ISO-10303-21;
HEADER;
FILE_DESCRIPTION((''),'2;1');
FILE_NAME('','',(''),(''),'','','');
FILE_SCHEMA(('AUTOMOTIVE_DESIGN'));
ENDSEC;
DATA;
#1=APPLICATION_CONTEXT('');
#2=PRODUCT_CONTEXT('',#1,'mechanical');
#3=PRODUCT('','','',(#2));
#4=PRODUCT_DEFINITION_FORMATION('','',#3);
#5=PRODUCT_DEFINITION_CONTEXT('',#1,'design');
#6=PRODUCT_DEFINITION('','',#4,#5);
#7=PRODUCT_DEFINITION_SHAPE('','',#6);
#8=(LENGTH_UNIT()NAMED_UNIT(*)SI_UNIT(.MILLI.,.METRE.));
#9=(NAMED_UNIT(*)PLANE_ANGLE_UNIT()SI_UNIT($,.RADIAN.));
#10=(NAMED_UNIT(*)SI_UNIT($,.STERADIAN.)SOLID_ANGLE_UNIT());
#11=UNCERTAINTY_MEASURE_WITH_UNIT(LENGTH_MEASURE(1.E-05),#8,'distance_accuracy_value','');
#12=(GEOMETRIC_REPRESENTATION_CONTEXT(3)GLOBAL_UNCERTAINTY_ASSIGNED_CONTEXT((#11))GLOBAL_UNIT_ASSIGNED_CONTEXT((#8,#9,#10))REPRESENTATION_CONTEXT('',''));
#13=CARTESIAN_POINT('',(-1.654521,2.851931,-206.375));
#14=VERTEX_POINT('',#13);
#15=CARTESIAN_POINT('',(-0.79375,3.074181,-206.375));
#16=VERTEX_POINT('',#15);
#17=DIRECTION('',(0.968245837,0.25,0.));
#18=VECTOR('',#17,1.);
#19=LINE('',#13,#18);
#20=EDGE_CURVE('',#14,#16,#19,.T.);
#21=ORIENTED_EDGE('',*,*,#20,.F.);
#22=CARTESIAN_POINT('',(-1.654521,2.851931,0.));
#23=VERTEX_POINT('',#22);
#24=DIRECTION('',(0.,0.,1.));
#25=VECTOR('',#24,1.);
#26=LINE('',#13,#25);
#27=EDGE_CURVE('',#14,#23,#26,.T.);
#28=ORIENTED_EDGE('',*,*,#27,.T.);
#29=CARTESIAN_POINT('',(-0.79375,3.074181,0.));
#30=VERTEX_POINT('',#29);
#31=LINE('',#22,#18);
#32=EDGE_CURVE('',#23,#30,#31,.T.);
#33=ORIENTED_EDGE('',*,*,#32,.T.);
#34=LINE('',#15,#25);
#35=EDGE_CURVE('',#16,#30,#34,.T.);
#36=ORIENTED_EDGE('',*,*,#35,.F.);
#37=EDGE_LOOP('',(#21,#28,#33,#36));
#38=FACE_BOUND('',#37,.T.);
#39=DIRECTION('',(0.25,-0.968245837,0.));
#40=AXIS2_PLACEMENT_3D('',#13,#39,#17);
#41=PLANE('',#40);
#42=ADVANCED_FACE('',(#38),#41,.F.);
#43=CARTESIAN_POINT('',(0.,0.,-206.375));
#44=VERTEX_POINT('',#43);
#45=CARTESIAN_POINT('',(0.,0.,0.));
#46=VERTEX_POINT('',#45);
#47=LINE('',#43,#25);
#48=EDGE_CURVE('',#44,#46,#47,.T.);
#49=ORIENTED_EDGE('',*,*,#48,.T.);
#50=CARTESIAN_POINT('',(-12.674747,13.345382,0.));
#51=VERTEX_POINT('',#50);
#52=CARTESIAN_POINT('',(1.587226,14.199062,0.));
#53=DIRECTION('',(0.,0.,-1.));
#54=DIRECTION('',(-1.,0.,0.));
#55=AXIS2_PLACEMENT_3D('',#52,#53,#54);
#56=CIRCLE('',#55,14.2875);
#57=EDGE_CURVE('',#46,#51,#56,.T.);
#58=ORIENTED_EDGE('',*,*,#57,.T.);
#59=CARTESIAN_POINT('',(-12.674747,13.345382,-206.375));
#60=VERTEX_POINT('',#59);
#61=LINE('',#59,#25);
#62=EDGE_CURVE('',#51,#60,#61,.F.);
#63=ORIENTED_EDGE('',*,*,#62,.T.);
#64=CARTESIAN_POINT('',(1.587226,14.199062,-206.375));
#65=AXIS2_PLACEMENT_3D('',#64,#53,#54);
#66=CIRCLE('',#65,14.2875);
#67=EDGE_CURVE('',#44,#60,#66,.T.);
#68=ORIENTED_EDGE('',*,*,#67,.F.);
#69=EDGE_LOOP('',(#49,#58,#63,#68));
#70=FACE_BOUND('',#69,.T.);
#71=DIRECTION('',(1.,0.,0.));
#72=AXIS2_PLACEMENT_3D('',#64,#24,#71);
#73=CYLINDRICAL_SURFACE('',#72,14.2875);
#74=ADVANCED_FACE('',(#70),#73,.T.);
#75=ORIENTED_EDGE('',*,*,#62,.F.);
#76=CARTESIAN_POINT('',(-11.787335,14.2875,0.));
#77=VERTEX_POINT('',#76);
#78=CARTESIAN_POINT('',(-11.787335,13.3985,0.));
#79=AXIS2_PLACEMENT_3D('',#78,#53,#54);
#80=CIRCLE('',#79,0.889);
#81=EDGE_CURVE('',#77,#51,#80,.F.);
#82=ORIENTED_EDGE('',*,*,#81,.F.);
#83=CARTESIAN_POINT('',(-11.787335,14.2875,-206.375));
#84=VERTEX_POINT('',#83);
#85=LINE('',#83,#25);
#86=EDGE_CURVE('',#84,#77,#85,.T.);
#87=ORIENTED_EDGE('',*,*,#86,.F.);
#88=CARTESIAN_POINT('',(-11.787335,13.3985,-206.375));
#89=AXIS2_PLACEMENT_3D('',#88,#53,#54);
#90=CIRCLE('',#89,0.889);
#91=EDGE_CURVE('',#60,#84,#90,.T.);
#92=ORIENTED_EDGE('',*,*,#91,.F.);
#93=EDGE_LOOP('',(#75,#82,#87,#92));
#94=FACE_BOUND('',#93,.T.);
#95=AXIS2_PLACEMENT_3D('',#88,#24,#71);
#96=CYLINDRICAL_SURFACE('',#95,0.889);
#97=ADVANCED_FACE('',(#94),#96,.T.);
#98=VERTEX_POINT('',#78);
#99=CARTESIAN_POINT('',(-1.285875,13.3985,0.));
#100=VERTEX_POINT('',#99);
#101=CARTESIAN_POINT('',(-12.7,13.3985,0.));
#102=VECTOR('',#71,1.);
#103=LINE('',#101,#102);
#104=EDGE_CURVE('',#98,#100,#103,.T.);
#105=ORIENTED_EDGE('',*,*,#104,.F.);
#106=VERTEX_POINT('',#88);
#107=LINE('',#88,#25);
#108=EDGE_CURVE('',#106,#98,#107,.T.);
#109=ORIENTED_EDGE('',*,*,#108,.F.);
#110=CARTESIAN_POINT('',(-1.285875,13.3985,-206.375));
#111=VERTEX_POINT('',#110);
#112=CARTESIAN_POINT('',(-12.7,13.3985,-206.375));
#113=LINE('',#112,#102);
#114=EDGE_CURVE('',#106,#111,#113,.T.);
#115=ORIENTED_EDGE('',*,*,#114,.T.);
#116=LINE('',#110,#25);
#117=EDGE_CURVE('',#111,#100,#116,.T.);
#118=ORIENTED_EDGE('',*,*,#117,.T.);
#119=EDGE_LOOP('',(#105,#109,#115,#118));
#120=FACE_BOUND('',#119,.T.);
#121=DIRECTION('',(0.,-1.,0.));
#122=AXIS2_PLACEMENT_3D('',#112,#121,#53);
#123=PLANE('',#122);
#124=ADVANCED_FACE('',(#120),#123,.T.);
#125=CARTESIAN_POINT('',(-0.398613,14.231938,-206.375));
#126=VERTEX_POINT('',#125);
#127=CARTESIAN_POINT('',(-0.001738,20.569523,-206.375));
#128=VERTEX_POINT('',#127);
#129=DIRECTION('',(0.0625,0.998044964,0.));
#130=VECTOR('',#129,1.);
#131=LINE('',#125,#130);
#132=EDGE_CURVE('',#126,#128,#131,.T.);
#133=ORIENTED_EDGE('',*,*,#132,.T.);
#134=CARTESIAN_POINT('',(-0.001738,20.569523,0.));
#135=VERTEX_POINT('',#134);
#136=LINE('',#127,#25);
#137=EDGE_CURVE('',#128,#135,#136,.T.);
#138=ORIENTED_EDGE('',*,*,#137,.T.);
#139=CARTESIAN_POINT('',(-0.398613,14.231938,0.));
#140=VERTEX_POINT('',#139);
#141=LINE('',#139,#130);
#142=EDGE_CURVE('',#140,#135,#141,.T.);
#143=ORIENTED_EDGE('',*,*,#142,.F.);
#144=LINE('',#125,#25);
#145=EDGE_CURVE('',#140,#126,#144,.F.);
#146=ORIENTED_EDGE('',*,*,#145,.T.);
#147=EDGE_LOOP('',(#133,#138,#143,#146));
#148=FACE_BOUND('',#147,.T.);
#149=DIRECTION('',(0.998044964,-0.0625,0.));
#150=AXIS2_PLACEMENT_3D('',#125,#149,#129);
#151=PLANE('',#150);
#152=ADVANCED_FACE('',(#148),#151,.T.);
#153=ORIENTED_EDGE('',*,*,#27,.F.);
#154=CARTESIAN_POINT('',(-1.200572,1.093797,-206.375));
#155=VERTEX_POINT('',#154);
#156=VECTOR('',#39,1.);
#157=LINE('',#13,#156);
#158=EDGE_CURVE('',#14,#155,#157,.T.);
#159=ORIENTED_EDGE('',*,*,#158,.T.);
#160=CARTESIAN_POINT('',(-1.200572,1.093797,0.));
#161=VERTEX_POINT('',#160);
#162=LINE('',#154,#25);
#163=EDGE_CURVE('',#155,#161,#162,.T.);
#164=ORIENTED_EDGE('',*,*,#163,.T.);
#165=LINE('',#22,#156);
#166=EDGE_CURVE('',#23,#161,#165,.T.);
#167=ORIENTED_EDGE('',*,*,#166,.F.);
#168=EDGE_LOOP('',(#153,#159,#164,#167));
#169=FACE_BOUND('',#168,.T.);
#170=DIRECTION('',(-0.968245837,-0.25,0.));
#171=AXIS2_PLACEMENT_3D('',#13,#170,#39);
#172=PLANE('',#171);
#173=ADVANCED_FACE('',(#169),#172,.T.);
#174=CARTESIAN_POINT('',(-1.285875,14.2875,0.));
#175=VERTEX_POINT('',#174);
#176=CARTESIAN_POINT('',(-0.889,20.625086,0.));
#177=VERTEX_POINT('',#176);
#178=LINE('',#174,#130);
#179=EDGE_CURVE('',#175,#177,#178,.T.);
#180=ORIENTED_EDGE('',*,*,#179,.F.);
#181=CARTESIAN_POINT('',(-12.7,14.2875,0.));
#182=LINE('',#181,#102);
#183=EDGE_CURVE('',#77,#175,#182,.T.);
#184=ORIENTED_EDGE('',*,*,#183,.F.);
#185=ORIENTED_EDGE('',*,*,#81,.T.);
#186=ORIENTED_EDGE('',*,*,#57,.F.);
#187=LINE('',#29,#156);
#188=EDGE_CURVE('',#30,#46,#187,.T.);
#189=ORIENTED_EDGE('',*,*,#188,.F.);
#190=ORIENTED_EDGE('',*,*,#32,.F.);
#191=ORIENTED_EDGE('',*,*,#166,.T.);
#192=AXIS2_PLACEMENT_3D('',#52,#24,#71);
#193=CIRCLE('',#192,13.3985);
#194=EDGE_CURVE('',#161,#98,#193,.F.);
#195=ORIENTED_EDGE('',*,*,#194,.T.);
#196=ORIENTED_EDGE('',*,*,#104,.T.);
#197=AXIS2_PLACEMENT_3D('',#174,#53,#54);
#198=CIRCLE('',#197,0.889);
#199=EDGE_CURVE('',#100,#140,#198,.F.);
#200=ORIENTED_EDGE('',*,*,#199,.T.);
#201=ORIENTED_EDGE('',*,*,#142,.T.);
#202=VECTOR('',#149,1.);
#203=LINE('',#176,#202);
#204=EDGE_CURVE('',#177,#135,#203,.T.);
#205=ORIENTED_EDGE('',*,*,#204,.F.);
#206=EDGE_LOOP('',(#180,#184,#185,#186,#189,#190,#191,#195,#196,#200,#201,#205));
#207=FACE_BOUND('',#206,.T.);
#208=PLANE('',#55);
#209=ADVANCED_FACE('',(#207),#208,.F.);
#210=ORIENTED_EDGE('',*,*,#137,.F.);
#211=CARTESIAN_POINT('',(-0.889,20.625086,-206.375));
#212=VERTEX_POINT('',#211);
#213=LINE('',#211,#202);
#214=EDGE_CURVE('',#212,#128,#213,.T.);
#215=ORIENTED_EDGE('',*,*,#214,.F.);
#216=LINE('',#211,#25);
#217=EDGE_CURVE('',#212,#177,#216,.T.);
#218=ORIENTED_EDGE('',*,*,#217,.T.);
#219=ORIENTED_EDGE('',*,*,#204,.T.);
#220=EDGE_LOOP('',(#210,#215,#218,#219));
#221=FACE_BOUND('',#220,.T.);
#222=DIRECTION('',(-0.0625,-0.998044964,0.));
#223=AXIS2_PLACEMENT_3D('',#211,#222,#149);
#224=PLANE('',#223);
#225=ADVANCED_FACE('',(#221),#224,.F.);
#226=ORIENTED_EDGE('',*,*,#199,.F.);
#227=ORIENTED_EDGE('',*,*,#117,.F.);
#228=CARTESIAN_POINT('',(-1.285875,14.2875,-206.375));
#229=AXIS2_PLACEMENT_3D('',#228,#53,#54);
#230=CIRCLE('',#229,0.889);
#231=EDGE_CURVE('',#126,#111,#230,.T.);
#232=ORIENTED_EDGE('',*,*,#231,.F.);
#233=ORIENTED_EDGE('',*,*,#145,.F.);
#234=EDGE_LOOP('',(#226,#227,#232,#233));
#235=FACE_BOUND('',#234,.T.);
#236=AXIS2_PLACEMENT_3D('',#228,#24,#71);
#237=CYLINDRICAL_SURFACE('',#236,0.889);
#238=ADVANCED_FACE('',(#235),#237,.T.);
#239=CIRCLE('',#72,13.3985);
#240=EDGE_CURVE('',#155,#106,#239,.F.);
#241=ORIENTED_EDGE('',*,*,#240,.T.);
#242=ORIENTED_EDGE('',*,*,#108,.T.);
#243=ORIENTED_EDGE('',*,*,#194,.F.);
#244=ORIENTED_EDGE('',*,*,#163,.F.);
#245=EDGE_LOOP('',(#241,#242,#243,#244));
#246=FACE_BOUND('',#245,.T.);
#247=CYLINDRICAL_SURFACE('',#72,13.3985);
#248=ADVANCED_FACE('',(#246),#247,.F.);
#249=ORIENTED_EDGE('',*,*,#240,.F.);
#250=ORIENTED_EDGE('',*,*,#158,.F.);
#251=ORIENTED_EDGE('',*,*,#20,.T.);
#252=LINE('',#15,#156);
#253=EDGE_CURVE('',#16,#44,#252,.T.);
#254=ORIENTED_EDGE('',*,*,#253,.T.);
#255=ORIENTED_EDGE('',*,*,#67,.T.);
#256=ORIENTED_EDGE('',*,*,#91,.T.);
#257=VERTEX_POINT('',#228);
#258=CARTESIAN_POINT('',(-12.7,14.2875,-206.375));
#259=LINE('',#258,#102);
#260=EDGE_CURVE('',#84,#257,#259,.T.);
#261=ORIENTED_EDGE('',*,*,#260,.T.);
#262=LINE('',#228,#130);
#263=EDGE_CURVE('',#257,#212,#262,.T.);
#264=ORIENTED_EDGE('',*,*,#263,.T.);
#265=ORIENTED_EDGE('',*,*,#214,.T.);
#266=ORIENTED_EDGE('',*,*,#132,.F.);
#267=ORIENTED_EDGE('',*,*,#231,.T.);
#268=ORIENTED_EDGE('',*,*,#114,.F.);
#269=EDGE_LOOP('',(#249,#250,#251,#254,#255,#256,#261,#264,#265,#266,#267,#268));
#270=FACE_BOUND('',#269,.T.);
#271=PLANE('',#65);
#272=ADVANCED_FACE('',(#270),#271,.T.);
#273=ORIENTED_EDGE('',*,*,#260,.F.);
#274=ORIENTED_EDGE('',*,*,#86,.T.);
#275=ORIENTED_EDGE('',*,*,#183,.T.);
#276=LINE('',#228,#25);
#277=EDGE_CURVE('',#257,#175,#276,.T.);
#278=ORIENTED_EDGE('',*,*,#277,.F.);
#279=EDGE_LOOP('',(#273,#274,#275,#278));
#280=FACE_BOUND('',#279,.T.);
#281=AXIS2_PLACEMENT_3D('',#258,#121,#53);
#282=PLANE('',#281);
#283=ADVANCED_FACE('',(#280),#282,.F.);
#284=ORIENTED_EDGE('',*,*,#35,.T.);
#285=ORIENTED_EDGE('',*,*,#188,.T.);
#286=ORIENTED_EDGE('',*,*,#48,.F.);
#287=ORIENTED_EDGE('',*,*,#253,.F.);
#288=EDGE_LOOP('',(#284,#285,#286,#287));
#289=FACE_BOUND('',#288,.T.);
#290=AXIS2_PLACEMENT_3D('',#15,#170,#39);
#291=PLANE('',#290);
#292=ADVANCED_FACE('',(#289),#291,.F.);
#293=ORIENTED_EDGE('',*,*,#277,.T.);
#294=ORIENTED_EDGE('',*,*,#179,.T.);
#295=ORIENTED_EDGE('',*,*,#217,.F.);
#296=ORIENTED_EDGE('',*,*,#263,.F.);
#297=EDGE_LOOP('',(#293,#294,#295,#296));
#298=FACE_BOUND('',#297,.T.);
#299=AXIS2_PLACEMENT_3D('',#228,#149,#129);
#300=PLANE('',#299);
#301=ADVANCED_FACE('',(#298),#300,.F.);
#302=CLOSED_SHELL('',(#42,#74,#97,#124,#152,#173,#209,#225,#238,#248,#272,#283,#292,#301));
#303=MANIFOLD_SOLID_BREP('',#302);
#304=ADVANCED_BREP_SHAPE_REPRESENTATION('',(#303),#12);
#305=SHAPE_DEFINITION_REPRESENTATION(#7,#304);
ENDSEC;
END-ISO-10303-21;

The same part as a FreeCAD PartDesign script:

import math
import FreeCAD as App
import Part
import Sketcher
Q = App.Units.Quantity


def edges_at(feature, points):
    """Names of the edges that pass closest to the given points."""
    edges = feature.Shape.Edges
    near = lambda p: min(range(len(edges)), key=lambda i: edges[i].distToShape(Part.Vertex(*p))[0])
    return sorted({f"Edge{near(p) + 1}" for p in points})

doc = App.newDocument("Part")
params = doc.addObject("Spreadsheet::Sheet", "Params")
for row, (alias, value) in enumerate([
    ("sketch1_radius", "0.5625 in"),
    ("sketch1_length", "0.25 in"),
    ("sketch1_length2", "0.125 in"),
    ("sketch1_length3", "0.035 in"),
    ("pad1_length", "8.125 in"),
    ("fillet_radius", "0.035 in"),
], start=1):
    params.set(f"A{row}", alias)
    params.set(f"B{row}", "=" + value)
    params.setAlias(f"B{row}", alias)

body = doc.addObject("PartDesign::Body", "Body")

# Sketch on XY plane
sketch1 = doc.addObject("Sketcher::SketchObject", "Sketch")
body.addObject(sketch1)
sketch1.AttachmentSupport = (doc.XY_Plane, [""])
sketch1.MapMode = "FlatFace"
sketch1.addGeometry([
    Part.LineSegment(App.Vector(0, 0, 0), App.Vector(-0.79375, 3.074181, 0)),  # 0
    Part.LineSegment(App.Vector(-0.79375, 3.074181, 0), App.Vector(-1.654521, 2.851931, 0)),  # 1
    Part.LineSegment(App.Vector(-1.654521, 2.851931, 0), App.Vector(-1.200572, 1.093797, 0)),  # 2
    Part.ArcOfCircle(Part.Circle(App.Vector(1.587226, 14.199062, 0), App.Vector(0, 0, 1), 13.3985), math.radians(-176.574529), math.radians(-102.009154)),  # 3
    Part.LineSegment(App.Vector(-11.787335, 13.3985, 0), App.Vector(-0.450805, 13.3985, 0)),  # 4
    Part.LineSegment(App.Vector(-0.450805, 13.3985, 0), App.Vector(-0.001738, 20.569523, 0)),  # 5
    Part.LineSegment(App.Vector(-0.001738, 20.569523, 0), App.Vector(-0.889, 20.625086, 0)),  # 6
    Part.LineSegment(App.Vector(-0.889, 20.625086, 0), App.Vector(-1.285875, 14.2875, 0)),  # 7
    Part.LineSegment(App.Vector(-1.285875, 14.2875, 0), App.Vector(-12.7, 14.2875, 0)),  # 8
    Part.ArcOfCircle(Part.Circle(App.Vector(1.587226, 14.199062, 0), App.Vector(0, 0, 1), 14.2875), math.radians(179.645344), math.radians(263.621734)),  # 9
], False)
sketch1.addConstraint([
    Sketcher.Constraint("Coincident", 0, 2, 1, 1),
    Sketcher.Constraint("Coincident", 1, 2, 2, 1),
    Sketcher.Constraint("Coincident", 2, 2, 3, 2),
    Sketcher.Constraint("Coincident", 3, 1, 4, 1),
    Sketcher.Constraint("Coincident", 4, 2, 5, 1),
    Sketcher.Constraint("Coincident", 5, 2, 6, 1),
    Sketcher.Constraint("Coincident", 6, 2, 7, 1),
    Sketcher.Constraint("Coincident", 7, 2, 8, 1),
    Sketcher.Constraint("Coincident", 8, 2, 9, 1),
    Sketcher.Constraint("Coincident", 9, 2, 0, 1),
    Sketcher.Constraint("Horizontal", 4),
    Sketcher.Constraint("Horizontal", 8),
    Sketcher.Constraint("Coincident", 9, 2, -1, 1),
    Sketcher.Constraint("Coincident", 9, 3, 3, 3),
    Sketcher.Constraint("Perpendicular", 0, 1),
    Sketcher.Constraint("Perpendicular", 1, 2),
    Sketcher.Constraint("Perpendicular", 5, 6),
    Sketcher.Constraint("Perpendicular", 6, 7),
    Sketcher.Constraint("Equal", 1, 6),
    Sketcher.Constraint("Radius", 9, Q("0.5625 in")),
    Sketcher.Constraint("DistanceX", 8, 2, -1, 1, Q("0.5 in")),
    Sketcher.Constraint("Radius", 3, Q("0.5275 in")),
    Sketcher.Constraint("Distance", 7, Q("0.25 in")),
    Sketcher.Constraint("Distance", 0, Q("0.125 in")),
    Sketcher.Constraint("Distance", 1, Q("0.035 in")),
    Sketcher.Constraint("DistanceX", 0, 2, -1, 1, Q("0.03125 in")),
    Sketcher.Constraint("DistanceX", 6, 2, -1, 1, Q("0.035 in")),
    Sketcher.Constraint("DistanceY", -1, 1, 7, 2, Q("0.5625 in")),
    Sketcher.Constraint("DistanceX", 3, 1, 5, 2, Q("0.4639999 in")),
    Sketcher.Constraint("DistanceY", 4, 2, 7, 2, Q("0.035 in")),
])
sketch1.setExpression("Constraints[19]", "Params.sketch1_radius")
sketch1.setExpression("Constraints[22]", "Params.sketch1_length")
sketch1.setExpression("Constraints[23]", "Params.sketch1_length2")
sketch1.setExpression("Constraints[24]", "Params.sketch1_length3")
pad1 = doc.addObject("PartDesign::Pad", "Pad")
body.addObject(pad1)
pad1.Profile = sketch1
pad1.setExpression("Length", "Params.pad1_length")
pad1.Reversed = True
doc.recompute()

fillet = doc.addObject("PartDesign::Fillet", "Fillet")
body.addObject(fillet)
fillet.Base = (pad1, edges_at(pad1, [(-0.451, 13.399, -103.188), (-12.7, 14.287, -103.188)]))
fillet.setExpression("Radius", "Params.fillet_radius")

doc.recompute()
